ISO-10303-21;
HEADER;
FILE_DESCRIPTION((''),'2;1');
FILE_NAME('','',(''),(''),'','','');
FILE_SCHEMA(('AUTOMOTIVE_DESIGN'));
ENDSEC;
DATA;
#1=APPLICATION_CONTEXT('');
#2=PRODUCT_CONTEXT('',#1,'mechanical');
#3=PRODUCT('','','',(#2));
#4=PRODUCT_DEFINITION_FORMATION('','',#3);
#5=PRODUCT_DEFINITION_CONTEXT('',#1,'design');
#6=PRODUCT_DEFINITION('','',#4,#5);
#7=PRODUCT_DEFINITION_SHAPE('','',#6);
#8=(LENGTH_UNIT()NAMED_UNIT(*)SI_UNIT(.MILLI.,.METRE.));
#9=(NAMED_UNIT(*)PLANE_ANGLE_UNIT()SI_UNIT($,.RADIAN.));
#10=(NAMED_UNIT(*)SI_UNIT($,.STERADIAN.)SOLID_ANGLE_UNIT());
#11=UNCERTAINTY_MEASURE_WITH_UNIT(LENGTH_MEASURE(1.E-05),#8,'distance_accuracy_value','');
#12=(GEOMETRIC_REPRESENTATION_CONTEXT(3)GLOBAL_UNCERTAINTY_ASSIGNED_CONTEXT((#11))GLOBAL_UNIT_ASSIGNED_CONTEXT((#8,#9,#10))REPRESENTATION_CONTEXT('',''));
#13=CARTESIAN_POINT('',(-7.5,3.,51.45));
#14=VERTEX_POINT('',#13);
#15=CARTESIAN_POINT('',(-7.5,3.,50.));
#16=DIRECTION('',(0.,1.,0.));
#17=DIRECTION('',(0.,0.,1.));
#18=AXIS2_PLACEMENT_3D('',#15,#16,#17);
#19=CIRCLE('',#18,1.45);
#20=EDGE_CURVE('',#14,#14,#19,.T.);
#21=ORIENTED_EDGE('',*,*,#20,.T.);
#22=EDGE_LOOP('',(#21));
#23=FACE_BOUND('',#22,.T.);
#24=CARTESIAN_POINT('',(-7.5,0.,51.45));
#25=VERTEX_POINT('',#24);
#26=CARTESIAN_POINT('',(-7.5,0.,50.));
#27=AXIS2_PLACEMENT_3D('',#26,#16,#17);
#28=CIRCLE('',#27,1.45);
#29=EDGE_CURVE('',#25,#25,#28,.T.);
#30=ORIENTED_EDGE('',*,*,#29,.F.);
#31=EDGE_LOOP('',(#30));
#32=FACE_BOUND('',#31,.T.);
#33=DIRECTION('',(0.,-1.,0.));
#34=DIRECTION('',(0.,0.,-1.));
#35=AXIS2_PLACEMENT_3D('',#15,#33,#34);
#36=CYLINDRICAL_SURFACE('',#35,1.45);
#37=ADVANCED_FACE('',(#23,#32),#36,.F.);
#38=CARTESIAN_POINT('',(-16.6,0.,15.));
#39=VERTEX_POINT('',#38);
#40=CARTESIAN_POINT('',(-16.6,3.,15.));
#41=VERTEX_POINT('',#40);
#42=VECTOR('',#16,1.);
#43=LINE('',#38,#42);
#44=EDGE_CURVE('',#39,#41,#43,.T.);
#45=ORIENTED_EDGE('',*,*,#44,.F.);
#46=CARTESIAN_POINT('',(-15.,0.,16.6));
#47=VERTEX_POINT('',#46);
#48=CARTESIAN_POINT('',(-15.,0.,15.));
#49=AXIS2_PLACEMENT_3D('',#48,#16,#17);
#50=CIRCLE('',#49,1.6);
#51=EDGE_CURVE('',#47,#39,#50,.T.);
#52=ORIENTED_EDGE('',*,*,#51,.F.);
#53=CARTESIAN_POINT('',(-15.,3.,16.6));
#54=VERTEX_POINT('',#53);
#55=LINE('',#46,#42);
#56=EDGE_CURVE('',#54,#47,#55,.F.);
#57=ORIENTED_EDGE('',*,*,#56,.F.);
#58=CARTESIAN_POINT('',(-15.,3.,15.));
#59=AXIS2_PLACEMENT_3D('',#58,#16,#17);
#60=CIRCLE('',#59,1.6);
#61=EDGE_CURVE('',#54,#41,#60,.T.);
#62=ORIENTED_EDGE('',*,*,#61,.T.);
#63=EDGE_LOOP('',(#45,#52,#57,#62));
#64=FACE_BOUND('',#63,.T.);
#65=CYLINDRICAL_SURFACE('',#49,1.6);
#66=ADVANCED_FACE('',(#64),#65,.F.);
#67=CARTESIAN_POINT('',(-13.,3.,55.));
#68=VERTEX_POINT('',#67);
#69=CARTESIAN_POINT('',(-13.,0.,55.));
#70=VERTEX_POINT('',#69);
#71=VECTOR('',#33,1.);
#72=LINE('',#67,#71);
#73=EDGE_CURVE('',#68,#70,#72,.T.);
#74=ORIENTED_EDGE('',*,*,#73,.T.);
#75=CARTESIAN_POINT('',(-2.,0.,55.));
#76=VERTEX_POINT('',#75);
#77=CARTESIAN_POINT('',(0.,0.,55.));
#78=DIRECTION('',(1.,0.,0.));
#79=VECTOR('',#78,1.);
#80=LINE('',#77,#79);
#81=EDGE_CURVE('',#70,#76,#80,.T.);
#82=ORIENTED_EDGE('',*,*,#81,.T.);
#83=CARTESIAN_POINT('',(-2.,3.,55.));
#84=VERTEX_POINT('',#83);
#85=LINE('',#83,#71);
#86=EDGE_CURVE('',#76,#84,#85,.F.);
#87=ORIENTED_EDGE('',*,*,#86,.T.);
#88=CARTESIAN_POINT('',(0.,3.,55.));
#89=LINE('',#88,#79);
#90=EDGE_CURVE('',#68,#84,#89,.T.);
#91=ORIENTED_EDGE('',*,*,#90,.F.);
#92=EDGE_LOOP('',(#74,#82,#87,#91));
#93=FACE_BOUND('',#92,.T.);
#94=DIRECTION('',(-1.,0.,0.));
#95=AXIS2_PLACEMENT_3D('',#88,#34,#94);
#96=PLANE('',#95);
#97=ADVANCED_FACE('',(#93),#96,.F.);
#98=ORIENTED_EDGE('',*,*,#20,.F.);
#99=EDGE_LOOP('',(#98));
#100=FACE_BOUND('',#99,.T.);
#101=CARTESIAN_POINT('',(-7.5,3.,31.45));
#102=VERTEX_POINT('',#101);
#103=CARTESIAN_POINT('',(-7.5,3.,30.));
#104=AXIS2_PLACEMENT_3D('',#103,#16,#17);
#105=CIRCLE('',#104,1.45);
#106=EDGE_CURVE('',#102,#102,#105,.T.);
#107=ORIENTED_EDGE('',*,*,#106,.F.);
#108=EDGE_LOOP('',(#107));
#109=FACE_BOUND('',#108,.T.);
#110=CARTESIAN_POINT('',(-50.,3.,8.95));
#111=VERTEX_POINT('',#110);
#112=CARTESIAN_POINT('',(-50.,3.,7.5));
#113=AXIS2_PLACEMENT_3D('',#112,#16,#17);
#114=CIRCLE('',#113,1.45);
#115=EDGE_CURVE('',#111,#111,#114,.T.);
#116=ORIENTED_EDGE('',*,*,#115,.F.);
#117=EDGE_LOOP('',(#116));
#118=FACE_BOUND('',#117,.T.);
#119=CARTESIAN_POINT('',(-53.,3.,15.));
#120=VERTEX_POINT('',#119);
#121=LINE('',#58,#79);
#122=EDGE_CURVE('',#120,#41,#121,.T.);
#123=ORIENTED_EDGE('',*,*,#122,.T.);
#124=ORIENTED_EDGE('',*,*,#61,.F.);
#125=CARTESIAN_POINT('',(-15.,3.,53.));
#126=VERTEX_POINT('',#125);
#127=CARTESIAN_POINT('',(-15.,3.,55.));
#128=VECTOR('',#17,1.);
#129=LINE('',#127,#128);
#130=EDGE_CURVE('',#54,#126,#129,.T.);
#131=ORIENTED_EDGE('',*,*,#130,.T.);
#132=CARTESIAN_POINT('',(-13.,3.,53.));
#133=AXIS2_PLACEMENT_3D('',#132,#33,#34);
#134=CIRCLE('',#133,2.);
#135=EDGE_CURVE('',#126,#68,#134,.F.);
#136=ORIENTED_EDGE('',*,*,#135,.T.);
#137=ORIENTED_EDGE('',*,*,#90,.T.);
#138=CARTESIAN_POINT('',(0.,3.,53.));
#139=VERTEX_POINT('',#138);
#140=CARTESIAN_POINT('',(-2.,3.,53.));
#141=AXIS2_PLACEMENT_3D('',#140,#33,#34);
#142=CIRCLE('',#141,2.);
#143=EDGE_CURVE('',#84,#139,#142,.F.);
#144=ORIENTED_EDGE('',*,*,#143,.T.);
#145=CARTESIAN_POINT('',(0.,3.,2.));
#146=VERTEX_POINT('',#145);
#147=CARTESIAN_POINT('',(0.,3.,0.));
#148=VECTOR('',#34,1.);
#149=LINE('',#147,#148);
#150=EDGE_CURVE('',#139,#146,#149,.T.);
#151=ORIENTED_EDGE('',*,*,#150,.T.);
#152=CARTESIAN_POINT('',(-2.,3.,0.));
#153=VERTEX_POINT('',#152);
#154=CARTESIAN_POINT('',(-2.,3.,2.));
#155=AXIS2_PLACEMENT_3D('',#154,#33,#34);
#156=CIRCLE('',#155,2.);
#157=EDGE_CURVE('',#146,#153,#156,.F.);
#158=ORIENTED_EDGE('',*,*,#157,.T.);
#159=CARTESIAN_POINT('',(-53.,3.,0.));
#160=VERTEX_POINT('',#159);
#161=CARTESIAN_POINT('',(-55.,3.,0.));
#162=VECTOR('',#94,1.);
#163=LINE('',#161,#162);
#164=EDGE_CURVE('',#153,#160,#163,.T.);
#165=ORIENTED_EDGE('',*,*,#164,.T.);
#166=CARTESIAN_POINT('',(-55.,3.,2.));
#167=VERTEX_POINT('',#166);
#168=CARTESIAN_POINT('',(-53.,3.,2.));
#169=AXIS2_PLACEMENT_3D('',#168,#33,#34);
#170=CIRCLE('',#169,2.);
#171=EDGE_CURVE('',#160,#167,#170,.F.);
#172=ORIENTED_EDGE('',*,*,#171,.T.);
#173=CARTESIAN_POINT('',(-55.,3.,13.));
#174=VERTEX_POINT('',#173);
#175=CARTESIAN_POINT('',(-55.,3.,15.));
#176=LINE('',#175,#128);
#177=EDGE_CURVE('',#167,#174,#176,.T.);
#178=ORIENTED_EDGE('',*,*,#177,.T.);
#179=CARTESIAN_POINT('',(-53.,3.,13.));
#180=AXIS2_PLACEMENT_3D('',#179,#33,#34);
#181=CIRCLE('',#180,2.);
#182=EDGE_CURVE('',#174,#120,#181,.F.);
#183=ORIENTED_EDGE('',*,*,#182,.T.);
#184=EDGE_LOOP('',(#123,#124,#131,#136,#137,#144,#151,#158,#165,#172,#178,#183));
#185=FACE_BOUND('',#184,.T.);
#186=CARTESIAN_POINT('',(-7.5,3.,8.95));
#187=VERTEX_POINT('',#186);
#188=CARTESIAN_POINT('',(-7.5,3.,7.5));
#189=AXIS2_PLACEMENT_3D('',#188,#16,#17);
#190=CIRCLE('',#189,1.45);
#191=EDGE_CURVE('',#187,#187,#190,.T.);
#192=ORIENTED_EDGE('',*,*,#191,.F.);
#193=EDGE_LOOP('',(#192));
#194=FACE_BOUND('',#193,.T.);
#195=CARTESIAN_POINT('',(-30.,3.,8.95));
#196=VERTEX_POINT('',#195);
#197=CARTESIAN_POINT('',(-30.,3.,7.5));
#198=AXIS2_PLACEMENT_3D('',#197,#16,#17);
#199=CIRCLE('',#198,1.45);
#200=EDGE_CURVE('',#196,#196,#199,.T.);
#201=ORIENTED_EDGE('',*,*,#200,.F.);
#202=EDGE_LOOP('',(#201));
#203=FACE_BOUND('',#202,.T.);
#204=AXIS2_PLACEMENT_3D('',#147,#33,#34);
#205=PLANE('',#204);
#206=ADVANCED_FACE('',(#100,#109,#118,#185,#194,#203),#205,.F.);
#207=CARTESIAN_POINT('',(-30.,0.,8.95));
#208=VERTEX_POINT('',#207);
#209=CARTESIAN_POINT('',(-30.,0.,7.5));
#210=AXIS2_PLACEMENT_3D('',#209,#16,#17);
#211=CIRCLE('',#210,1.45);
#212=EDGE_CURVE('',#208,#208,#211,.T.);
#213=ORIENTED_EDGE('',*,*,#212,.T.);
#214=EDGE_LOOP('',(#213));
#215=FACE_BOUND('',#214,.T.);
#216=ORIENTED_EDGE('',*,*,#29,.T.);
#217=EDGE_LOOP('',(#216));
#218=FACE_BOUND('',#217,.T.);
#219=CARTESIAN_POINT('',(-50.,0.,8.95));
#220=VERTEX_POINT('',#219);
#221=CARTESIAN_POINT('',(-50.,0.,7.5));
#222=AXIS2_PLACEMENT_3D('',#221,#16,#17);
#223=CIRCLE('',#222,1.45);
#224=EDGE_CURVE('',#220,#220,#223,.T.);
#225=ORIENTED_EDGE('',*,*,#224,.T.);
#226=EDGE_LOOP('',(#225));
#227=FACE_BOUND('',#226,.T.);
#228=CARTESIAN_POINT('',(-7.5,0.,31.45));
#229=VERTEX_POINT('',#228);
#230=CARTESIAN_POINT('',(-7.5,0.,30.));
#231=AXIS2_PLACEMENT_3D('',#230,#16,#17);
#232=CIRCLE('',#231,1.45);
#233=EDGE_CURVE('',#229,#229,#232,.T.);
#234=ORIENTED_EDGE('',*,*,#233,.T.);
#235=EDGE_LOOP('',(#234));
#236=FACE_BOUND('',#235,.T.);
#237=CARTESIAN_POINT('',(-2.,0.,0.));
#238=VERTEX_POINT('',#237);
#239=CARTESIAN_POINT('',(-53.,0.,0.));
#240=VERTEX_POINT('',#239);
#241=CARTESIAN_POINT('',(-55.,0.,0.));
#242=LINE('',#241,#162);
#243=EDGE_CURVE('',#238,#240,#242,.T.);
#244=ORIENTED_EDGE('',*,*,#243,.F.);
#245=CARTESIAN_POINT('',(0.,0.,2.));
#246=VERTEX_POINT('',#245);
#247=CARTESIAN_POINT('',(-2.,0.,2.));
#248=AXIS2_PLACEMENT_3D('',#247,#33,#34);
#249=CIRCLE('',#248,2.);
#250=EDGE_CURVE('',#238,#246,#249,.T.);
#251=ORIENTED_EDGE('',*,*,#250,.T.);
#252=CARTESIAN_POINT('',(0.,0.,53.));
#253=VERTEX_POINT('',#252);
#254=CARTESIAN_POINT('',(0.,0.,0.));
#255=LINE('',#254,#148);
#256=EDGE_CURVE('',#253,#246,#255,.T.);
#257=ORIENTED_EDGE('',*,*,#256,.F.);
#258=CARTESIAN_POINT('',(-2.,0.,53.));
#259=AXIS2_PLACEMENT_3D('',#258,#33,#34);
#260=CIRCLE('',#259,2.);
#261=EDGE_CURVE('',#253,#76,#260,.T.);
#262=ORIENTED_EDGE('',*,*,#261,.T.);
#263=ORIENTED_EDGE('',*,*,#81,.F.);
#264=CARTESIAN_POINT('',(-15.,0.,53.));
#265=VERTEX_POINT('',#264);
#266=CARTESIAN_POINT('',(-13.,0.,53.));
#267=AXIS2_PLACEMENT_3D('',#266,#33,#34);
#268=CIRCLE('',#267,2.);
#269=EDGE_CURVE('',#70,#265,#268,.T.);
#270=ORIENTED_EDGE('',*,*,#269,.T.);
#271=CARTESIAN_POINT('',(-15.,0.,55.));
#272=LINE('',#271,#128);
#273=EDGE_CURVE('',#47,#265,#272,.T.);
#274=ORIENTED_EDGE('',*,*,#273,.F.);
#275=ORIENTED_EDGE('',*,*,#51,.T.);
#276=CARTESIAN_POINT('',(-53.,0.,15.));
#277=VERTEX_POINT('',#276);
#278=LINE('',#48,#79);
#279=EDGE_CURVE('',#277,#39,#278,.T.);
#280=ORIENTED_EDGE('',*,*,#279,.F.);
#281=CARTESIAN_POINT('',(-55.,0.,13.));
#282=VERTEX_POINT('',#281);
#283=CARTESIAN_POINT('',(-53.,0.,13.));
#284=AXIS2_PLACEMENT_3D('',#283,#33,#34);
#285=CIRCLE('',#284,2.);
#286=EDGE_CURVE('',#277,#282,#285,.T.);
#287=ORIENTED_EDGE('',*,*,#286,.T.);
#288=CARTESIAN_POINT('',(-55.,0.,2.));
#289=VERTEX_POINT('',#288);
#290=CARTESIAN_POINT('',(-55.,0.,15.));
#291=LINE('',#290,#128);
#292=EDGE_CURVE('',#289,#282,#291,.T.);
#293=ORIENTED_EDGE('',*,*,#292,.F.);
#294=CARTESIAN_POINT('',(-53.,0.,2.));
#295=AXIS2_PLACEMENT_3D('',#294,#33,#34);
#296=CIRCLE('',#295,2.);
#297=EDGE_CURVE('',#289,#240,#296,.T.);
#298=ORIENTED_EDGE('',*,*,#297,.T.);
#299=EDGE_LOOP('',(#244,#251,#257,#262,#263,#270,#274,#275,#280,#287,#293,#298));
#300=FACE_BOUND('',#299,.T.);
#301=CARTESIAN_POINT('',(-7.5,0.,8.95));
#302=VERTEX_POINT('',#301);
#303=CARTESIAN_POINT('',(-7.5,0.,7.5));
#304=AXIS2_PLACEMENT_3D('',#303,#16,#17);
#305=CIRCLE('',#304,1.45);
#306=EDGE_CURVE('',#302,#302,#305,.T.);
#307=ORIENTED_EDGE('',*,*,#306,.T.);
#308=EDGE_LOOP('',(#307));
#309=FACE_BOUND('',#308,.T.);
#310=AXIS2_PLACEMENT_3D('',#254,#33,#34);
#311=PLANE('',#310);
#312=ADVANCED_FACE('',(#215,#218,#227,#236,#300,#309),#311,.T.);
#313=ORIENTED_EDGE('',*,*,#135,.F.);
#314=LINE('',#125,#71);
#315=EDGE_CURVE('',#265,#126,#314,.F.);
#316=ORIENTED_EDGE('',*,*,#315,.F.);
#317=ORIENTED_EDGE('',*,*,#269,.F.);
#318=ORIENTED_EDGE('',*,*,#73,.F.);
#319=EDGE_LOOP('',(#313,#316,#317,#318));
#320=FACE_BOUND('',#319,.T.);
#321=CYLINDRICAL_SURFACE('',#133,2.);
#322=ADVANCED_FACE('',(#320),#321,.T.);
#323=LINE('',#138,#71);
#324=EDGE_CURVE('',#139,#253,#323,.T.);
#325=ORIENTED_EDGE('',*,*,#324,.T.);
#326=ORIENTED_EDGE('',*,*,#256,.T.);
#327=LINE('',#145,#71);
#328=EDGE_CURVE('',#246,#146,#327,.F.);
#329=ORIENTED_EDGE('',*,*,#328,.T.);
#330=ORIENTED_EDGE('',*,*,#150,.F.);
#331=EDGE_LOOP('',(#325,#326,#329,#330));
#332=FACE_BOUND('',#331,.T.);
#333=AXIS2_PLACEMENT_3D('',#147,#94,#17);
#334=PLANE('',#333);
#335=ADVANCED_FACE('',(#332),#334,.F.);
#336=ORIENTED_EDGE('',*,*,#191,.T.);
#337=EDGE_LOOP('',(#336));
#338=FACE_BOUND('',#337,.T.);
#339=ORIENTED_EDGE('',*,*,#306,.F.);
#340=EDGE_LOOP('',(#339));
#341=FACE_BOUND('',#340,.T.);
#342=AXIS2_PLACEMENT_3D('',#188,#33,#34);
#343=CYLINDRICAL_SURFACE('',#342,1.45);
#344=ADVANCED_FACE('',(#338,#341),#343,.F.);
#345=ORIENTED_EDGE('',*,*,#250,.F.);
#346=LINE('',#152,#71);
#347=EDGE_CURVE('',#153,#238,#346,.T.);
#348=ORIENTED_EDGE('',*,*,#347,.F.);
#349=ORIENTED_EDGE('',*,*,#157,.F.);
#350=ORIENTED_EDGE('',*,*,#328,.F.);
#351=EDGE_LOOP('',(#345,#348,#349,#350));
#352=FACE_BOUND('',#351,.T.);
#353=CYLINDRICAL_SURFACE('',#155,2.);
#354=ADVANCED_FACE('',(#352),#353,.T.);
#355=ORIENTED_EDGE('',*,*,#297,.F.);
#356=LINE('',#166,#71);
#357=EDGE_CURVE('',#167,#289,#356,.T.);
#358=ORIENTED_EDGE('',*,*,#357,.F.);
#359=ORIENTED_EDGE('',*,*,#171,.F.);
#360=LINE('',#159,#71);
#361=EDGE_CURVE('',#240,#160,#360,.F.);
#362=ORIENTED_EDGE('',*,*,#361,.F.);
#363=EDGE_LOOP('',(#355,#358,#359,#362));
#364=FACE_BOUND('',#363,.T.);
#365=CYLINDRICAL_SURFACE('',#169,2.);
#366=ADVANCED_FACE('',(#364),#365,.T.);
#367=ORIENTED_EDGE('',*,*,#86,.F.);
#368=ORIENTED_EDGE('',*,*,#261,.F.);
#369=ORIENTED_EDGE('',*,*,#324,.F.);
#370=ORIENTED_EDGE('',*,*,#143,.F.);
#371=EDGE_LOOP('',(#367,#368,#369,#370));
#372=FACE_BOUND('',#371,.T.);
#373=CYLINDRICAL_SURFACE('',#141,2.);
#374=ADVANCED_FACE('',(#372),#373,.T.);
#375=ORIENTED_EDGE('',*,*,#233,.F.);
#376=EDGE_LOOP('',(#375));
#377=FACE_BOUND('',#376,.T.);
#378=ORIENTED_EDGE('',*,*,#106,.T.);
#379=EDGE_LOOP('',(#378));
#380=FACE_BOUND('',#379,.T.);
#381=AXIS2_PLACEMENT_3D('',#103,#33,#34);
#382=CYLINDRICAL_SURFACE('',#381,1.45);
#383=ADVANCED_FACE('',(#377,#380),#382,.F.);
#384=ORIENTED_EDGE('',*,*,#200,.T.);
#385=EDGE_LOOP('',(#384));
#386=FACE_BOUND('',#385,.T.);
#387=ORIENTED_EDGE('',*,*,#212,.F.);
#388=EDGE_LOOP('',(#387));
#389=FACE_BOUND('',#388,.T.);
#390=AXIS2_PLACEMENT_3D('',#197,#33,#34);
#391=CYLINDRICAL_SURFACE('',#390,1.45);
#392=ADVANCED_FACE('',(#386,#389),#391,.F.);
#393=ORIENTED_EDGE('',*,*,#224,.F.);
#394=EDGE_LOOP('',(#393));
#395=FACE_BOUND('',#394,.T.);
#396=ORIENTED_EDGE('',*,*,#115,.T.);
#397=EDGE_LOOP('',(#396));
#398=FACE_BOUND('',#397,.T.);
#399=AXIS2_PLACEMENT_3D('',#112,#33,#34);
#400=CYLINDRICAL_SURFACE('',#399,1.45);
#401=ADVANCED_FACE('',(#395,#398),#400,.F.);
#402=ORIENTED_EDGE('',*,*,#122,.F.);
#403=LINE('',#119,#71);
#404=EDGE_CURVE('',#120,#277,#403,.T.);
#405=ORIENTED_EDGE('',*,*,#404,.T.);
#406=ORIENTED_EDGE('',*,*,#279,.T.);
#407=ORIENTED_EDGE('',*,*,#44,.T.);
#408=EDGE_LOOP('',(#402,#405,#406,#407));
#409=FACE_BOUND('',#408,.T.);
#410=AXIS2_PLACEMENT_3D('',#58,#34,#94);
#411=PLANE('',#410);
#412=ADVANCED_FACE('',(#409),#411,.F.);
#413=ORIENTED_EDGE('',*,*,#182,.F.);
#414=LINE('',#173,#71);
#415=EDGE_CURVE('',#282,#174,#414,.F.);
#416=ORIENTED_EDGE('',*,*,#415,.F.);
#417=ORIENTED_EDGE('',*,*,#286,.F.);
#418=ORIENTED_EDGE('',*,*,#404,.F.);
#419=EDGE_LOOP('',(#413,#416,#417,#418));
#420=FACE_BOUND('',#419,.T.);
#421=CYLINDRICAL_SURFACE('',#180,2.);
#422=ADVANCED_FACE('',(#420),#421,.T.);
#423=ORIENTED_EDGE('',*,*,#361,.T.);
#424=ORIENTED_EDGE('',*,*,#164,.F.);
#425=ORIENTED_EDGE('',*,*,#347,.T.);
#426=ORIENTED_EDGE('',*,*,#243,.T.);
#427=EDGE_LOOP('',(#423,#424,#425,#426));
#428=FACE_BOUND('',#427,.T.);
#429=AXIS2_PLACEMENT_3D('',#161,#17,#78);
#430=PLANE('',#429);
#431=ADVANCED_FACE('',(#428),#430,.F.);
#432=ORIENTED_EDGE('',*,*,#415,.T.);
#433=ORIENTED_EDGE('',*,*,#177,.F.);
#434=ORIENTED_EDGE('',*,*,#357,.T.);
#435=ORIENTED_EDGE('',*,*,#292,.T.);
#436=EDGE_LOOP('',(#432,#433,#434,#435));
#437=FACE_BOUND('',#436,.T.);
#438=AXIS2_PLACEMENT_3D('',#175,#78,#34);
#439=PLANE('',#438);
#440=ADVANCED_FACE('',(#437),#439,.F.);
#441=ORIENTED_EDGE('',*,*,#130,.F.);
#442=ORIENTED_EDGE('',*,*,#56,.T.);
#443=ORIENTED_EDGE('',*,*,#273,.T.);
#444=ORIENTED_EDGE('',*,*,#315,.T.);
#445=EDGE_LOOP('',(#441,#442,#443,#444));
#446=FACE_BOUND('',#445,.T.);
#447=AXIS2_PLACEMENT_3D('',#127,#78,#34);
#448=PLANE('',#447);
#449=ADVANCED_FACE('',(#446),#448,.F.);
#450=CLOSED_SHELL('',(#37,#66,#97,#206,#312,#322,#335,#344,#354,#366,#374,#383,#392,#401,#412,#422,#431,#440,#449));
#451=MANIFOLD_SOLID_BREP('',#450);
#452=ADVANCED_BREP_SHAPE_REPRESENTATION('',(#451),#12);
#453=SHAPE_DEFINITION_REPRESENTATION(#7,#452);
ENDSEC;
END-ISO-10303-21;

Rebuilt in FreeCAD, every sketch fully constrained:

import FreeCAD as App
import Part
import Sketcher


def edges_at(feature, points):
    """Names of the edges that pass closest to the given points."""
    edges = feature.Shape.Edges
    near = lambda p: min(range(len(edges)), key=lambda i: edges[i].distToShape(Part.Vertex(*p))[0])
    return sorted({f"Edge{near(p) + 1}" for p in points})

doc = App.newDocument("Part")
body = doc.addObject("PartDesign::Body", "Body")

sketch1 = body.newObject("Sketcher::SketchObject", "Sketch")
sketch1.AttachmentSupport = (doc.getObject("XZ_Plane"), [""])
sketch1.MapMode = "FlatFace"
sketch1.addGeometry([
    Part.LineSegment(App.Vector(0, 0, 0), App.Vector(-55, 0, 0)),
    Part.LineSegment(App.Vector(-55, 0, 0), App.Vector(-55, 15, 0)),
    Part.LineSegment(App.Vector(-55, 15, 0), App.Vector(-15, 15, 0)),
    Part.LineSegment(App.Vector(-15, 15, 0), App.Vector(-15, 55, 0)),
    Part.LineSegment(App.Vector(-15, 55, 0), App.Vector(0, 55, 0)),
    Part.LineSegment(App.Vector(0, 55, 0), App.Vector(0, 0, 0)),
    Part.Circle(App.Vector(-7.5, 50, 0), App.Vector(0, 0, 1), 1.4),
    Part.Circle(App.Vector(-7.5, 30, 0), App.Vector(0, 0, 1), 1.4),
    Part.Circle(App.Vector(-7.5, 7.5, 0), App.Vector(0, 0, 1), 1.4),
    Part.Circle(App.Vector(-30, 7.5, 0), App.Vector(0, 0, 1), 1.4),
    Part.Circle(App.Vector(-50, 7.5, 0), App.Vector(0, 0, 1), 1.4),
], False)
sketch1.addConstraint([
    Sketcher.Constraint("Coincident", 0, 2, 1, 1),
    Sketcher.Constraint("Coincident", 1, 2, 2, 1),
    Sketcher.Constraint("Coincident", 2, 2, 3, 1),
    Sketcher.Constraint("Coincident", 3, 2, 4, 1),
    Sketcher.Constraint("Coincident", 4, 2, 5, 1),
    Sketcher.Constraint("Coincident", 5, 2, 0, 1),
    Sketcher.Constraint("Horizontal", 0),
    Sketcher.Constraint("Vertical", 1),
    Sketcher.Constraint("Horizontal", 2),
    Sketcher.Constraint("Vertical", 3),
    Sketcher.Constraint("Horizontal", 4),
    Sketcher.Constraint("Vertical", 5),
    Sketcher.Constraint("Coincident", 5, 2, -1, 1),
    Sketcher.Constraint("Equal", 6, 7),
    Sketcher.Constraint("Equal", 7, 8),
    Sketcher.Constraint("Equal", 8, 9),
    Sketcher.Constraint("Equal", 9, 10),
    Sketcher.Constraint("Horizontal", 8, 3, 9, 3),
    Sketcher.Constraint("Horizontal", 9, 3, 10, 3),
    Sketcher.Constraint("Vertical", 6, 3, 7, 3),
    Sketcher.Constraint("Vertical", 7, 3, 8, 3),
    Sketcher.Constraint("Equal", 4, 1),
    Sketcher.Constraint("Equal", 2, 3),
    Sketcher.Constraint("Diameter", 6, 2.9),
    Sketcher.Constraint("DistanceX", 0, 2, 0, 1, 55.0),
    Sketcher.Constraint("DistanceX", 2, 1, 2, 2, 40.0),
    Sketcher.Constraint("DistanceY", -1, 1, 6, 3, 50.0),
    Sketcher.Constraint("DistanceY", -1, 1, 7, 3, 30.0),
    Sketcher.Constraint("DistanceX", 9, 3, -1, 1, 30.0),
    Sketcher.Constraint("DistanceX", 10, 3, -1, 1, 50.0),
    Sketcher.Constraint("DistanceX", 6, 3, -1, 1, 7.5),
    Sketcher.Constraint("DistanceY", -1, 1, 8, 3, 7.5),
])
pad1 = body.newObject("PartDesign::Pad", "Pad")
pad1.Profile = sketch1
pad1.Length = 3
pad1.Reversed = True
doc.recompute()

fillet = body.newObject("PartDesign::Fillet", "Fillet")
fillet.Base = (pad1, edges_at(pad1, [
    (-55, 1.5, 0),
    (0, 1.5, 0),
    (0, 1.5, 55),
    (-15, 1.5, 55),
    (-55, 1.5, 15),
]))
fillet.Radius = 2

sketch2 = body.newObject("Sketcher::SketchObject", "Sketch001")
sketch2.AttachmentSupport = (doc.getObject("XZ_Plane"), [""])
sketch2.MapMode = "FlatFace"
sketch2.AttachmentOffset = App.Placement(App.Vector(0, 0, -3), App.Rotation())
sketch2.addGeometry(Part.Circle(App.Vector(-15, 15, 0), App.Vector(0, 0, 1), 1.6), False)
sketch2.addConstraint([
    Sketcher.Constraint("Diameter", 0, 3.2),
    Sketcher.Constraint("DistanceX", 0, 3, -1, 1, 15.0),
    Sketcher.Constraint("DistanceY", -1, 1, 0, 3, 15.0),
])
pocket1 = body.newObject("PartDesign::Pocket", "Pocket")
pocket1.Profile = sketch2
pocket1.Type = "ThroughAll"
pocket1.Reversed = True

doc.recompute()
